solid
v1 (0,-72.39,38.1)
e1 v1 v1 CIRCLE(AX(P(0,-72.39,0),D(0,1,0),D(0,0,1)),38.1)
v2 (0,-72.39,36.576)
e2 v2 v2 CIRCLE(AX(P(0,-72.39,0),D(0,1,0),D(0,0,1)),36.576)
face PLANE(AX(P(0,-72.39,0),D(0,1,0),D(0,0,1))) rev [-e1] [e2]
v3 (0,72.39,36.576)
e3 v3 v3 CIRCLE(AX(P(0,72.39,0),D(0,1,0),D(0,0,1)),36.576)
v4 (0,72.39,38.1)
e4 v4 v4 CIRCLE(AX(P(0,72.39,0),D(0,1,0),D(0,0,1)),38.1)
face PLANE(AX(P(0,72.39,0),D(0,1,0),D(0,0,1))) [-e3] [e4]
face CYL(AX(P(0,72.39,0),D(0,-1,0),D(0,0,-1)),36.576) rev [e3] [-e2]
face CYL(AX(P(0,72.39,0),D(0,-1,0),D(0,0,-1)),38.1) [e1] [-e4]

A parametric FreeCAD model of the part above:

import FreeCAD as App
import Part
import Sketcher
Q = App.Units.Quantity

doc = App.newDocument("Part")
params = doc.addObject("Spreadsheet::Sheet", "Params")
for row, (alias, value) in enumerate([
    ("sketch1_diameter", "3 in"),
    ("sketch1_diameter2", "2.88 in"),
    ("pad1_length", "5.7 in"),
], start=1):
    params.set(f"A{row}", alias)
    params.set(f"B{row}", "=" + value)
    params.setAlias(f"B{row}", alias)

body = doc.addObject("PartDesign::Body", "Body")

# Sketch on XZ plane
sketch1 = body.newObject("Sketcher::SketchObject", "Sketch")
sketch1.AttachmentSupport = (doc.getObject("XZ_Plane"), [""])
sketch1.MapMode = "FlatFace"
sketch1.addGeometry(Part.Circle(App.Vector(0, 0, 0), App.Vector(0, 0, 1), 38.1), False)
sketch1.addGeometry(Part.Circle(App.Vector(0, 0, 0), App.Vector(0, 0, 1), 36.576), False)
sketch1.addConstraint(Sketcher.Constraint("Coincident", 0, 3, -1, 1))
sketch1.addConstraint(Sketcher.Constraint("Coincident", 1, 3, -1, 1))
sketch1.addConstraint(Sketcher.Constraint("Diameter", 0, Q("3 in")))
sketch1.addConstraint(Sketcher.Constraint("Diameter", 1, Q("2.88 in")))
sketch1.setExpression("Constraints[2]", "Params.sketch1_diameter")
sketch1.setExpression("Constraints[3]", "Params.sketch1_diameter2")
pad1 = body.newObject("PartDesign::Pad", "Pad")
pad1.Profile = sketch1
pad1.setExpression("Length", "Params.pad1_length")
pad1.Midplane = True

doc.recompute()
